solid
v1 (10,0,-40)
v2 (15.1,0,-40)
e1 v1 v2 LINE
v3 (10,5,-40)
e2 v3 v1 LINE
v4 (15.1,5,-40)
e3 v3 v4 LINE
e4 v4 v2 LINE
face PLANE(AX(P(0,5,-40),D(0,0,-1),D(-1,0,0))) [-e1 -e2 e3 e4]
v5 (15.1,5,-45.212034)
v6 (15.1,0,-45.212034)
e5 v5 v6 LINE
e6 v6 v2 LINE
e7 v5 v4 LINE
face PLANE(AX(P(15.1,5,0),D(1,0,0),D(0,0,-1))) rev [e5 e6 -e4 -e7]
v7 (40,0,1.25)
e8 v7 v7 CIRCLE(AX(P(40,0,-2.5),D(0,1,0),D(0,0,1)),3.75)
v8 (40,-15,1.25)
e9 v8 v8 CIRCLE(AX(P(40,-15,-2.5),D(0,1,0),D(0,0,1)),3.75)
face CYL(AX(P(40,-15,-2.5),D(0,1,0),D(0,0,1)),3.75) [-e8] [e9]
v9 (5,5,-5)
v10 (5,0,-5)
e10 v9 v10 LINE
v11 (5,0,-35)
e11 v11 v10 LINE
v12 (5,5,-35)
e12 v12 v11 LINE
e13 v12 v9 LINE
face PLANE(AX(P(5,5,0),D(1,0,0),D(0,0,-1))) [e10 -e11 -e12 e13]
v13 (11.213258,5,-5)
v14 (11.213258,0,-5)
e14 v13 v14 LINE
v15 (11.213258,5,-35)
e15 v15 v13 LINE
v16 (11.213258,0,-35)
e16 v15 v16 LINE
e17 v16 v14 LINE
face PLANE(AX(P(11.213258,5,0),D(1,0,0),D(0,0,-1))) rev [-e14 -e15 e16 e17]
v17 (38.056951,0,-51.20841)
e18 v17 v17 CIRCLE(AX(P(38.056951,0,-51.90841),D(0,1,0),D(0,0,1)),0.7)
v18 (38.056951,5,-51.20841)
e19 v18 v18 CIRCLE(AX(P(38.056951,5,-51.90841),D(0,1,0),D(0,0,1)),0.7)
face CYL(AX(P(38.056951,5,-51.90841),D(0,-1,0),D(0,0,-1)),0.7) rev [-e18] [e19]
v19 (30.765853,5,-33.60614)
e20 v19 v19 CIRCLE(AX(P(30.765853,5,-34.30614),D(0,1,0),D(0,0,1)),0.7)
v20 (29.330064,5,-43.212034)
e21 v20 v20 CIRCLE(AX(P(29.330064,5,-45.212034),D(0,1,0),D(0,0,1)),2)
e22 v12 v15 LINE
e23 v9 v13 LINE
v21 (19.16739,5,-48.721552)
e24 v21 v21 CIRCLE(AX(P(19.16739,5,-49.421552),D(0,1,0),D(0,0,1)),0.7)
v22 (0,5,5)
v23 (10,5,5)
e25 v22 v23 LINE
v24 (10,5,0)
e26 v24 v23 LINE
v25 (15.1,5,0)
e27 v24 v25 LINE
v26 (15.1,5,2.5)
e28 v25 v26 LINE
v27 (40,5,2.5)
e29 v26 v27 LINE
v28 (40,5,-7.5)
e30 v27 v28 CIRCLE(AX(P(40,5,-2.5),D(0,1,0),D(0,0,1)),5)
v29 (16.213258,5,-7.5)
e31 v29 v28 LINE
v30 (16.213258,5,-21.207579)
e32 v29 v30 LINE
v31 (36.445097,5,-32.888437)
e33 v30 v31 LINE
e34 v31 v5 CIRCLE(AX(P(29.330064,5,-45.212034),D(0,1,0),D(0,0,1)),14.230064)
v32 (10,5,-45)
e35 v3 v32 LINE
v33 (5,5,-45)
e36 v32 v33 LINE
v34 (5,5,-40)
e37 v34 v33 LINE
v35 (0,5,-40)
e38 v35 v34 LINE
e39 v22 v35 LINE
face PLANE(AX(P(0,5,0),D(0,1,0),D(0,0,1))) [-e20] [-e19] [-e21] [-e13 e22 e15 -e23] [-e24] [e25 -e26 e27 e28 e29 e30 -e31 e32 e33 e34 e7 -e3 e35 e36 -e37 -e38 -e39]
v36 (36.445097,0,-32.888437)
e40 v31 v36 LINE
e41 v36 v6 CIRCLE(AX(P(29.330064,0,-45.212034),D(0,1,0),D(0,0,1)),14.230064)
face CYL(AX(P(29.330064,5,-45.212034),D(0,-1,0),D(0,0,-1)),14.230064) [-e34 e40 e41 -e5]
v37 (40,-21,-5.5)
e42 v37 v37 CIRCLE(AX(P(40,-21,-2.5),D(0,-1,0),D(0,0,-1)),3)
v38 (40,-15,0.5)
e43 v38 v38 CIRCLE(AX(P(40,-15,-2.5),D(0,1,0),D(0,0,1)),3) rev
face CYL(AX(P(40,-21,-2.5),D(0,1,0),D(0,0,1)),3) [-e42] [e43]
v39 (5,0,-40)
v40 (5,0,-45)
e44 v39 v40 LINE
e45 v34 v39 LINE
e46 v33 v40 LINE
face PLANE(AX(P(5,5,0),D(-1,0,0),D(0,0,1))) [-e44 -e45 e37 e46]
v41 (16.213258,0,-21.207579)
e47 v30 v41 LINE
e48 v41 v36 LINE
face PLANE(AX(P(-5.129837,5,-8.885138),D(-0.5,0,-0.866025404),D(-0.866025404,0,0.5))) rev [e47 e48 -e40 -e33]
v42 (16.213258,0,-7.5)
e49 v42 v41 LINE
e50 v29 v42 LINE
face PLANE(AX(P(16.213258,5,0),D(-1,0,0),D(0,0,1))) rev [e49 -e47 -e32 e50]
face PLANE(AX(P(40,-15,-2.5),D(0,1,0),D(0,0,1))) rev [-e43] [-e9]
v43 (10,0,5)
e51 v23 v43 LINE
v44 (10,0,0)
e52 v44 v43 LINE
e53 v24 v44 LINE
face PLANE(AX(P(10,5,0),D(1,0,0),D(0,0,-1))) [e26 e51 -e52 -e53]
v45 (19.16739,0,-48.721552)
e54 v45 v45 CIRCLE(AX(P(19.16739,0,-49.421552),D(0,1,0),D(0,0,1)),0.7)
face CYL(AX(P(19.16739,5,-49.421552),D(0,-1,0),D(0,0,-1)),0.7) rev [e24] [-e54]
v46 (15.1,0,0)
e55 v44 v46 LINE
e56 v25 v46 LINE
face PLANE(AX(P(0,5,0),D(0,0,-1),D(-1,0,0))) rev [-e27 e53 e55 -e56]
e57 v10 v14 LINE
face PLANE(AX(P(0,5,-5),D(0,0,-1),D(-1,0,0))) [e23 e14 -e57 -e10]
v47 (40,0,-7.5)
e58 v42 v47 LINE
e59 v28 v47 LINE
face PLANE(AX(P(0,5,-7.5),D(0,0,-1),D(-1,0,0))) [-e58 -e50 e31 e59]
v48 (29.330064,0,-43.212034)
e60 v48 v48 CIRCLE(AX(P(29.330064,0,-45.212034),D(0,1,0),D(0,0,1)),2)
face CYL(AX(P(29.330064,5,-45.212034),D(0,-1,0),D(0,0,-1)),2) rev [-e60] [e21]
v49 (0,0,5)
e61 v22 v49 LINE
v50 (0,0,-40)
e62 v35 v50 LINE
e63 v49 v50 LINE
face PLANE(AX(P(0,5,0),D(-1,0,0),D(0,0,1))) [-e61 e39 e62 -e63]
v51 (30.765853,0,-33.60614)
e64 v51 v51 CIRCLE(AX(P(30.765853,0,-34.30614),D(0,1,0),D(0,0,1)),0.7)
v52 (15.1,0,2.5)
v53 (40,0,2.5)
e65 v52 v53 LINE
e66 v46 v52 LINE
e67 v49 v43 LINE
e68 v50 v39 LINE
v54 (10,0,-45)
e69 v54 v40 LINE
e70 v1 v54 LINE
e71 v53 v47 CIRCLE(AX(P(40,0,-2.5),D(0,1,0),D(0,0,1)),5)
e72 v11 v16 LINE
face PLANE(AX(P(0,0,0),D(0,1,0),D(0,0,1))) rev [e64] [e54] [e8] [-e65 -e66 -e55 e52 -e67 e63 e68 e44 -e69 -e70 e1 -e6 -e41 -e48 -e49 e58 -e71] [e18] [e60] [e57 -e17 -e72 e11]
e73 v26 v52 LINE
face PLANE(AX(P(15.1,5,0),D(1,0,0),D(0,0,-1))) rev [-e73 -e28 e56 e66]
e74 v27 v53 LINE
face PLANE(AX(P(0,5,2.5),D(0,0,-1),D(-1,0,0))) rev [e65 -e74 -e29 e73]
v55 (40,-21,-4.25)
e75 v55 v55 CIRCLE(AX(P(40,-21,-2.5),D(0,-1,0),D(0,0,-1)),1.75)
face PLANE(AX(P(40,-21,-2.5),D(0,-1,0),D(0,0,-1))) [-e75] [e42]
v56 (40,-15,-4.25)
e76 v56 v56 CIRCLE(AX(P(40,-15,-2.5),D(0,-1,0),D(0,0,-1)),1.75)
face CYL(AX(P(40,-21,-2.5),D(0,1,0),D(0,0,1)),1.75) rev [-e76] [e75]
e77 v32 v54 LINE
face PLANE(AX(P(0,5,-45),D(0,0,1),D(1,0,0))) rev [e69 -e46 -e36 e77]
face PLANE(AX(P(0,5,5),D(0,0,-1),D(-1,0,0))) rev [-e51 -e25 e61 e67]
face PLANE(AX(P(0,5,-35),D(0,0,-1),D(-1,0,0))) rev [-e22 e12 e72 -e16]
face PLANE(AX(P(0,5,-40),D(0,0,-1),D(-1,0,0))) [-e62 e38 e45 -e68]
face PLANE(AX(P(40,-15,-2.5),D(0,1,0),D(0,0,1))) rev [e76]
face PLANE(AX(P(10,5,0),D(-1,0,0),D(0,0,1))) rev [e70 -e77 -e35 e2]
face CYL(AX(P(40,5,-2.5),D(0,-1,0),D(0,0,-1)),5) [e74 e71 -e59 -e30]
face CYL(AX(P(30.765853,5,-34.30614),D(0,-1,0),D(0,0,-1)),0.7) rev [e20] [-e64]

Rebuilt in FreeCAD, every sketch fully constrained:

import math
import FreeCAD as App
import Part
import Sketcher
Q = App.Units.Quantity

doc = App.newDocument("Part")
params = doc.addObject("Spreadsheet::Sheet", "Params")
for row, (alias, value) in enumerate([
    ("sketch1_diameter", "4 mm"),
    ("sketch1_radius", "5 mm"),
    ("sketch1_diameter2", "1.4 mm"),
    ("sketch1_width", "5 mm"),
    ("sketch1_height", "45 mm"),
    ("pad1_length", "5 mm"),
    ("sketch2_diameter", "7.5 mm"),
    ("pad2_length", "20 mm"),
    ("sketch3_diameter", "6 mm"),
    ("sketch3_diameter2", "3.5 mm"),
    ("pad3_length", "6 mm"),
], start=1):
    params.set(f"A{row}", alias)
    params.set(f"B{row}", "=" + value)
    params.setAlias(f"B{row}", alias)

body = doc.addObject("PartDesign::Body", "Body")

# Sketch on XZ plane
sketch1 = body.newObject("Sketcher::SketchObject", "Sketch")
sketch1.AttachmentSupport = (doc.getObject("XZ_Plane"), [""])
sketch1.MapMode = "FlatFace"
sketch1.addGeometry([
    Part.LineSegment(App.Vector(16.213258, -7.5, 0), App.Vector(16.213258, -21.207579, 0)),  # 0
    Part.LineSegment(App.Vector(16.213258, -21.207579, 0), App.Vector(36.445097, -32.888437, 0)),  # 1
    Part.ArcOfCircle(Part.Circle(App.Vector(29.330064, -45.212034, 0), App.Vector(0, 0, 1), 14.230064), math.radians(180), math.radians(420)),  # 2
    Part.LineSegment(App.Vector(15.1, -45.212034, 0), App.Vector(15.1, -40, 0)),  # 3
    Part.LineSegment(App.Vector(15.1, -40, 0), App.Vector(10, -40, 0)),  # 4
    Part.LineSegment(App.Vector(10, -40, 0), App.Vector(10, -45, 0)),  # 5
    Part.LineSegment(App.Vector(10, -45, 0), App.Vector(5, -45, 0)),  # 6
    Part.LineSegment(App.Vector(5, -45, 0), App.Vector(5, -40, 0)),  # 7
    Part.LineSegment(App.Vector(5, -40, 0), App.Vector(0, -40, 0)),  # 8
    Part.LineSegment(App.Vector(0, -40, 0), App.Vector(0, 5, 0)),  # 9
    Part.LineSegment(App.Vector(0, 5, 0), App.Vector(10, 5, 0)),  # 10
    Part.LineSegment(App.Vector(10, 5, 0), App.Vector(10, 0, 0)),  # 11
    Part.LineSegment(App.Vector(10, 0, 0), App.Vector(15.1, 0, 0)),  # 12
    Part.LineSegment(App.Vector(15.1, 0, 0), App.Vector(15.1, 2.5, 0)),  # 13
    Part.LineSegment(App.Vector(15.1, 2.5, 0), App.Vector(40, 2.5, 0)),  # 14
    Part.ArcOfCircle(Part.Circle(App.Vector(40, -2.5, 0), App.Vector(0, 0, 1), 5), math.radians(-90), math.radians(90)),  # 15
    Part.LineSegment(App.Vector(40, -7.5, 0), App.Vector(16.213258, -7.5, 0)),  # 16
    Part.LineSegment(App.Vector(11.213258, -5, 0), App.Vector(5, -5, 0)),  # 17
    Part.LineSegment(App.Vector(5, -5, 0), App.Vector(5, -35, 0)),  # 18
    Part.LineSegment(App.Vector(5, -35, 0), App.Vector(11.213258, -35, 0)),  # 19
    Part.LineSegment(App.Vector(11.213258, -35, 0), App.Vector(11.213258, -5, 0)),  # 20
    Part.Circle(App.Vector(19.16739, -49.421552, 0), App.Vector(0, 0, 1), 0.7),  # 21
    Part.Circle(App.Vector(30.765853, -34.30614, 0), App.Vector(0, 0, 1), 0.7),  # 22
    Part.Circle(App.Vector(29.330064, -45.212034, 0), App.Vector(0, 0, 1), 2),  # 23
    Part.Circle(App.Vector(38.056951, -51.90841, 0), App.Vector(0, 0, 1), 0.7),  # 24
], False)
sketch1.addConstraint([
    Sketcher.Constraint("Coincident", 0, 2, 1, 1),
    Sketcher.Constraint("Tangent", 1, 2, 2, 2),
    Sketcher.Constraint("Tangent", 2, 1, 3, 1),
    Sketcher.Constraint("Coincident", 3, 2, 4, 1),
    Sketcher.Constraint("Coincident", 4, 2, 5, 1),
    Sketcher.Constraint("Coincident", 5, 2, 6, 1),
    Sketcher.Constraint("Coincident", 6, 2, 7, 1),
    Sketcher.Constraint("Coincident", 7, 2, 8, 1),
    Sketcher.Constraint("Coincident", 8, 2, 9, 1),
    Sketcher.Constraint("Coincident", 9, 2, 10, 1),
    Sketcher.Constraint("Coincident", 10, 2, 11, 1),
    Sketcher.Constraint("Coincident", 11, 2, 12, 1),
    Sketcher.Constraint("Coincident", 12, 2, 13, 1),
    Sketcher.Constraint("Coincident", 13, 2, 14, 1),
    Sketcher.Constraint("Tangent", 14, 2, 15, 2),
    Sketcher.Constraint("Tangent", 15, 1, 16, 1),
    Sketcher.Constraint("Coincident", 16, 2, 0, 1),
    Sketcher.Constraint("Coincident", 17, 2, 18, 1),
    Sketcher.Constraint("Coincident", 18, 2, 19, 1),
    Sketcher.Constraint("Coincident", 19, 2, 20, 1),
    Sketcher.Constraint("Coincident", 20, 2, 17, 1),
    Sketcher.Constraint("Vertical", 0),
    Sketcher.Constraint("Vertical", 3),
    Sketcher.Constraint("Horizontal", 4),
    Sketcher.Constraint("Vertical", 5),
    Sketcher.Constraint("Horizontal", 6),
    Sketcher.Constraint("Vertical", 7),
    Sketcher.Constraint("Horizontal", 8),
    Sketcher.Constraint("Vertical", 9),
    Sketcher.Constraint("Horizontal", 10),
    Sketcher.Constraint("Vertical", 11),
    Sketcher.Constraint("Horizontal", 12),
    Sketcher.Constraint("Vertical", 13),
    Sketcher.Constraint("Horizontal", 14),
    Sketcher.Constraint("Horizontal", 16),
    Sketcher.Constraint("Horizontal", 17),
    Sketcher.Constraint("Vertical", 18),
    Sketcher.Constraint("Horizontal", 19),
    Sketcher.Constraint("Vertical", 20),
    Sketcher.Constraint("Coincident", 23, 3, 2, 3),
    Sketcher.Constraint("Equal", 21, 22),
    Sketcher.Constraint("Equal", 22, 24),
    Sketcher.Constraint("PointOnObject", 8, 2, -2),
    Sketcher.Constraint("PointOnObject", 11, 2, -1),
    Sketcher.Constraint("Horizontal", 4, 2, 7, 2),
    Sketcher.Constraint("Vertical", 5, 2, 10, 2),
    Sketcher.Constraint("Vertical", 3, 2, 12, 2),
    Sketcher.Constraint("Vertical", 7, 2, 17, 2),
    Sketcher.Constraint("Equal", 6, 8),
    Sketcher.Constraint("Equal", 8, 5),
    Sketcher.Constraint("Equal", 7, 11),
    Sketcher.Constraint("Diameter", 23, Q("4 mm")),
    Sketcher.Constraint("Radius", 15, Q("5 mm")),
    Sketcher.Constraint("Diameter", 21, Q("1.4 mm")),
    Sketcher.Constraint("DistanceX", 6, 2, 6, 1, Q("5 mm")),
    Sketcher.Constraint("DistanceY", 9, 1, 9, 2, Q("45 mm")),
    Sketcher.Constraint("DistanceY", 18, 2, 18, 1, Q("30 mm")),
    Sketcher.Constraint("Angle", 1, Q("-30 deg")),
    Sketcher.Constraint("DistanceX", 4, 2, 4, 1, Q("5.1 mm")),
    Sketcher.Constraint("DistanceX", 14, 1, 14, 2, Q("24.9 mm")),
    Sketcher.Constraint("DistanceY", 13, 1, 13, 2, Q("2.5 mm")),
    Sketcher.Constraint("DistanceY", 17, 2, -1, 1, Q("5 mm")),
    Sketcher.Constraint("DistanceX", 20, 2, 16, 2, Q("5 mm")),
    Sketcher.Constraint("Radius", 2, Q("14.230064 mm")),
    Sketcher.Constraint("DistanceX", 16, 2, 16, 1, Q("23.786742 mm")),
    Sketcher.Constraint("DistanceY", 0, 2, 0, 1, Q("13.707579 mm")),
    Sketcher.Constraint("DistanceX", 22, 3, 24, 3, Q("7.291099 mm")),
    Sketcher.Constraint("DistanceX", -1, 1, 21, 3, Q("19.16739 mm")),
    Sketcher.Constraint("DistanceY", 21, 3, -1, 1, Q("49.421552 mm")),
    Sketcher.Constraint("DistanceY", 22, 3, -1, 1, Q("34.30614 mm")),
    Sketcher.Constraint("DistanceX", -1, 1, 24, 3, Q("38.056951 mm")),
    Sketcher.Constraint("DistanceY", 24, 3, -1, 1, Q("51.90841 mm")),
])
sketch1.setExpression("Constraints[51]", "Params.sketch1_diameter")
sketch1.setExpression("Constraints[52]", "Params.sketch1_radius")
sketch1.setExpression("Constraints[53]", "Params.sketch1_diameter2")
sketch1.setExpression("Constraints[54]", "Params.sketch1_width")
sketch1.setExpression("Constraints[55]", "Params.sketch1_height")
pad1 = body.newObject("PartDesign::Pad", "Pad")
pad1.Profile = sketch1
pad1.setExpression("Length", "Params.pad1_length")
pad1.Reversed = True

# Sketch on XZ plane
sketch2 = body.newObject("Sketcher::SketchObject", "Sketch001")
sketch2.AttachmentSupport = (doc.getObject("XZ_Plane"), [""])
sketch2.MapMode = "FlatFace"
sketch2.AttachmentOffset = App.Placement(App.Vector(0, 0, -5), App.Rotation())
sketch2.addGeometry(Part.Circle(App.Vector(40, -2.5, 0), App.Vector(0, 0, 1), 3.75), False)
sketch2.addConstraint([
    Sketcher.Constraint("Diameter", 0, Q("7.5 mm")),
    Sketcher.Constraint("DistanceX", -1, 1, 0, 3, Q("40 mm")),
    Sketcher.Constraint("DistanceY", 0, 3, -1, 1, Q("2.5 mm")),
])
sketch2.setExpression("Constraints[0]", "Params.sketch2_diameter")
pad2 = body.newObject("PartDesign::Pad", "Pad001")
pad2.Profile = sketch2
pad2.setExpression("Length", "Params.pad2_length")

# Sketch on XZ plane
sketch3 = body.newObject("Sketcher::SketchObject", "Sketch002")
sketch3.AttachmentSupport = (doc.getObject("XZ_Plane"), [""])
sketch3.MapMode = "FlatFace"
sketch3.AttachmentOffset = App.Placement(App.Vector(0, 0, 15), App.Rotation())
sketch3.addGeometry([
    Part.Circle(App.Vector(40, -2.5, 0), App.Vector(0, 0, 1), 3),
    Part.Circle(App.Vector(40, -2.5, 0), App.Vector(0, 0, 1), 1.75),
], False)
sketch3.addConstraint([
    Sketcher.Constraint("Coincident", 1, 3, 0, 3),
    Sketcher.Constraint("Diameter", 0, Q("6 mm")),
    Sketcher.Constraint("Diameter", 1, Q("3.5 mm")),
    Sketcher.Constraint("DistanceX", -1, 1, 0, 3, Q("40 mm")),
    Sketcher.Constraint("DistanceY", 0, 3, -1, 1, Q("2.5 mm")),
])
sketch3.setExpression("Constraints[1]", "Params.sketch3_diameter")
sketch3.setExpression("Constraints[2]", "Params.sketch3_diameter2")
pad3 = body.newObject("PartDesign::Pad", "Pad002")
pad3.Profile = sketch3
pad3.setExpression("Length", "Params.pad3_length")

doc.recompute()
